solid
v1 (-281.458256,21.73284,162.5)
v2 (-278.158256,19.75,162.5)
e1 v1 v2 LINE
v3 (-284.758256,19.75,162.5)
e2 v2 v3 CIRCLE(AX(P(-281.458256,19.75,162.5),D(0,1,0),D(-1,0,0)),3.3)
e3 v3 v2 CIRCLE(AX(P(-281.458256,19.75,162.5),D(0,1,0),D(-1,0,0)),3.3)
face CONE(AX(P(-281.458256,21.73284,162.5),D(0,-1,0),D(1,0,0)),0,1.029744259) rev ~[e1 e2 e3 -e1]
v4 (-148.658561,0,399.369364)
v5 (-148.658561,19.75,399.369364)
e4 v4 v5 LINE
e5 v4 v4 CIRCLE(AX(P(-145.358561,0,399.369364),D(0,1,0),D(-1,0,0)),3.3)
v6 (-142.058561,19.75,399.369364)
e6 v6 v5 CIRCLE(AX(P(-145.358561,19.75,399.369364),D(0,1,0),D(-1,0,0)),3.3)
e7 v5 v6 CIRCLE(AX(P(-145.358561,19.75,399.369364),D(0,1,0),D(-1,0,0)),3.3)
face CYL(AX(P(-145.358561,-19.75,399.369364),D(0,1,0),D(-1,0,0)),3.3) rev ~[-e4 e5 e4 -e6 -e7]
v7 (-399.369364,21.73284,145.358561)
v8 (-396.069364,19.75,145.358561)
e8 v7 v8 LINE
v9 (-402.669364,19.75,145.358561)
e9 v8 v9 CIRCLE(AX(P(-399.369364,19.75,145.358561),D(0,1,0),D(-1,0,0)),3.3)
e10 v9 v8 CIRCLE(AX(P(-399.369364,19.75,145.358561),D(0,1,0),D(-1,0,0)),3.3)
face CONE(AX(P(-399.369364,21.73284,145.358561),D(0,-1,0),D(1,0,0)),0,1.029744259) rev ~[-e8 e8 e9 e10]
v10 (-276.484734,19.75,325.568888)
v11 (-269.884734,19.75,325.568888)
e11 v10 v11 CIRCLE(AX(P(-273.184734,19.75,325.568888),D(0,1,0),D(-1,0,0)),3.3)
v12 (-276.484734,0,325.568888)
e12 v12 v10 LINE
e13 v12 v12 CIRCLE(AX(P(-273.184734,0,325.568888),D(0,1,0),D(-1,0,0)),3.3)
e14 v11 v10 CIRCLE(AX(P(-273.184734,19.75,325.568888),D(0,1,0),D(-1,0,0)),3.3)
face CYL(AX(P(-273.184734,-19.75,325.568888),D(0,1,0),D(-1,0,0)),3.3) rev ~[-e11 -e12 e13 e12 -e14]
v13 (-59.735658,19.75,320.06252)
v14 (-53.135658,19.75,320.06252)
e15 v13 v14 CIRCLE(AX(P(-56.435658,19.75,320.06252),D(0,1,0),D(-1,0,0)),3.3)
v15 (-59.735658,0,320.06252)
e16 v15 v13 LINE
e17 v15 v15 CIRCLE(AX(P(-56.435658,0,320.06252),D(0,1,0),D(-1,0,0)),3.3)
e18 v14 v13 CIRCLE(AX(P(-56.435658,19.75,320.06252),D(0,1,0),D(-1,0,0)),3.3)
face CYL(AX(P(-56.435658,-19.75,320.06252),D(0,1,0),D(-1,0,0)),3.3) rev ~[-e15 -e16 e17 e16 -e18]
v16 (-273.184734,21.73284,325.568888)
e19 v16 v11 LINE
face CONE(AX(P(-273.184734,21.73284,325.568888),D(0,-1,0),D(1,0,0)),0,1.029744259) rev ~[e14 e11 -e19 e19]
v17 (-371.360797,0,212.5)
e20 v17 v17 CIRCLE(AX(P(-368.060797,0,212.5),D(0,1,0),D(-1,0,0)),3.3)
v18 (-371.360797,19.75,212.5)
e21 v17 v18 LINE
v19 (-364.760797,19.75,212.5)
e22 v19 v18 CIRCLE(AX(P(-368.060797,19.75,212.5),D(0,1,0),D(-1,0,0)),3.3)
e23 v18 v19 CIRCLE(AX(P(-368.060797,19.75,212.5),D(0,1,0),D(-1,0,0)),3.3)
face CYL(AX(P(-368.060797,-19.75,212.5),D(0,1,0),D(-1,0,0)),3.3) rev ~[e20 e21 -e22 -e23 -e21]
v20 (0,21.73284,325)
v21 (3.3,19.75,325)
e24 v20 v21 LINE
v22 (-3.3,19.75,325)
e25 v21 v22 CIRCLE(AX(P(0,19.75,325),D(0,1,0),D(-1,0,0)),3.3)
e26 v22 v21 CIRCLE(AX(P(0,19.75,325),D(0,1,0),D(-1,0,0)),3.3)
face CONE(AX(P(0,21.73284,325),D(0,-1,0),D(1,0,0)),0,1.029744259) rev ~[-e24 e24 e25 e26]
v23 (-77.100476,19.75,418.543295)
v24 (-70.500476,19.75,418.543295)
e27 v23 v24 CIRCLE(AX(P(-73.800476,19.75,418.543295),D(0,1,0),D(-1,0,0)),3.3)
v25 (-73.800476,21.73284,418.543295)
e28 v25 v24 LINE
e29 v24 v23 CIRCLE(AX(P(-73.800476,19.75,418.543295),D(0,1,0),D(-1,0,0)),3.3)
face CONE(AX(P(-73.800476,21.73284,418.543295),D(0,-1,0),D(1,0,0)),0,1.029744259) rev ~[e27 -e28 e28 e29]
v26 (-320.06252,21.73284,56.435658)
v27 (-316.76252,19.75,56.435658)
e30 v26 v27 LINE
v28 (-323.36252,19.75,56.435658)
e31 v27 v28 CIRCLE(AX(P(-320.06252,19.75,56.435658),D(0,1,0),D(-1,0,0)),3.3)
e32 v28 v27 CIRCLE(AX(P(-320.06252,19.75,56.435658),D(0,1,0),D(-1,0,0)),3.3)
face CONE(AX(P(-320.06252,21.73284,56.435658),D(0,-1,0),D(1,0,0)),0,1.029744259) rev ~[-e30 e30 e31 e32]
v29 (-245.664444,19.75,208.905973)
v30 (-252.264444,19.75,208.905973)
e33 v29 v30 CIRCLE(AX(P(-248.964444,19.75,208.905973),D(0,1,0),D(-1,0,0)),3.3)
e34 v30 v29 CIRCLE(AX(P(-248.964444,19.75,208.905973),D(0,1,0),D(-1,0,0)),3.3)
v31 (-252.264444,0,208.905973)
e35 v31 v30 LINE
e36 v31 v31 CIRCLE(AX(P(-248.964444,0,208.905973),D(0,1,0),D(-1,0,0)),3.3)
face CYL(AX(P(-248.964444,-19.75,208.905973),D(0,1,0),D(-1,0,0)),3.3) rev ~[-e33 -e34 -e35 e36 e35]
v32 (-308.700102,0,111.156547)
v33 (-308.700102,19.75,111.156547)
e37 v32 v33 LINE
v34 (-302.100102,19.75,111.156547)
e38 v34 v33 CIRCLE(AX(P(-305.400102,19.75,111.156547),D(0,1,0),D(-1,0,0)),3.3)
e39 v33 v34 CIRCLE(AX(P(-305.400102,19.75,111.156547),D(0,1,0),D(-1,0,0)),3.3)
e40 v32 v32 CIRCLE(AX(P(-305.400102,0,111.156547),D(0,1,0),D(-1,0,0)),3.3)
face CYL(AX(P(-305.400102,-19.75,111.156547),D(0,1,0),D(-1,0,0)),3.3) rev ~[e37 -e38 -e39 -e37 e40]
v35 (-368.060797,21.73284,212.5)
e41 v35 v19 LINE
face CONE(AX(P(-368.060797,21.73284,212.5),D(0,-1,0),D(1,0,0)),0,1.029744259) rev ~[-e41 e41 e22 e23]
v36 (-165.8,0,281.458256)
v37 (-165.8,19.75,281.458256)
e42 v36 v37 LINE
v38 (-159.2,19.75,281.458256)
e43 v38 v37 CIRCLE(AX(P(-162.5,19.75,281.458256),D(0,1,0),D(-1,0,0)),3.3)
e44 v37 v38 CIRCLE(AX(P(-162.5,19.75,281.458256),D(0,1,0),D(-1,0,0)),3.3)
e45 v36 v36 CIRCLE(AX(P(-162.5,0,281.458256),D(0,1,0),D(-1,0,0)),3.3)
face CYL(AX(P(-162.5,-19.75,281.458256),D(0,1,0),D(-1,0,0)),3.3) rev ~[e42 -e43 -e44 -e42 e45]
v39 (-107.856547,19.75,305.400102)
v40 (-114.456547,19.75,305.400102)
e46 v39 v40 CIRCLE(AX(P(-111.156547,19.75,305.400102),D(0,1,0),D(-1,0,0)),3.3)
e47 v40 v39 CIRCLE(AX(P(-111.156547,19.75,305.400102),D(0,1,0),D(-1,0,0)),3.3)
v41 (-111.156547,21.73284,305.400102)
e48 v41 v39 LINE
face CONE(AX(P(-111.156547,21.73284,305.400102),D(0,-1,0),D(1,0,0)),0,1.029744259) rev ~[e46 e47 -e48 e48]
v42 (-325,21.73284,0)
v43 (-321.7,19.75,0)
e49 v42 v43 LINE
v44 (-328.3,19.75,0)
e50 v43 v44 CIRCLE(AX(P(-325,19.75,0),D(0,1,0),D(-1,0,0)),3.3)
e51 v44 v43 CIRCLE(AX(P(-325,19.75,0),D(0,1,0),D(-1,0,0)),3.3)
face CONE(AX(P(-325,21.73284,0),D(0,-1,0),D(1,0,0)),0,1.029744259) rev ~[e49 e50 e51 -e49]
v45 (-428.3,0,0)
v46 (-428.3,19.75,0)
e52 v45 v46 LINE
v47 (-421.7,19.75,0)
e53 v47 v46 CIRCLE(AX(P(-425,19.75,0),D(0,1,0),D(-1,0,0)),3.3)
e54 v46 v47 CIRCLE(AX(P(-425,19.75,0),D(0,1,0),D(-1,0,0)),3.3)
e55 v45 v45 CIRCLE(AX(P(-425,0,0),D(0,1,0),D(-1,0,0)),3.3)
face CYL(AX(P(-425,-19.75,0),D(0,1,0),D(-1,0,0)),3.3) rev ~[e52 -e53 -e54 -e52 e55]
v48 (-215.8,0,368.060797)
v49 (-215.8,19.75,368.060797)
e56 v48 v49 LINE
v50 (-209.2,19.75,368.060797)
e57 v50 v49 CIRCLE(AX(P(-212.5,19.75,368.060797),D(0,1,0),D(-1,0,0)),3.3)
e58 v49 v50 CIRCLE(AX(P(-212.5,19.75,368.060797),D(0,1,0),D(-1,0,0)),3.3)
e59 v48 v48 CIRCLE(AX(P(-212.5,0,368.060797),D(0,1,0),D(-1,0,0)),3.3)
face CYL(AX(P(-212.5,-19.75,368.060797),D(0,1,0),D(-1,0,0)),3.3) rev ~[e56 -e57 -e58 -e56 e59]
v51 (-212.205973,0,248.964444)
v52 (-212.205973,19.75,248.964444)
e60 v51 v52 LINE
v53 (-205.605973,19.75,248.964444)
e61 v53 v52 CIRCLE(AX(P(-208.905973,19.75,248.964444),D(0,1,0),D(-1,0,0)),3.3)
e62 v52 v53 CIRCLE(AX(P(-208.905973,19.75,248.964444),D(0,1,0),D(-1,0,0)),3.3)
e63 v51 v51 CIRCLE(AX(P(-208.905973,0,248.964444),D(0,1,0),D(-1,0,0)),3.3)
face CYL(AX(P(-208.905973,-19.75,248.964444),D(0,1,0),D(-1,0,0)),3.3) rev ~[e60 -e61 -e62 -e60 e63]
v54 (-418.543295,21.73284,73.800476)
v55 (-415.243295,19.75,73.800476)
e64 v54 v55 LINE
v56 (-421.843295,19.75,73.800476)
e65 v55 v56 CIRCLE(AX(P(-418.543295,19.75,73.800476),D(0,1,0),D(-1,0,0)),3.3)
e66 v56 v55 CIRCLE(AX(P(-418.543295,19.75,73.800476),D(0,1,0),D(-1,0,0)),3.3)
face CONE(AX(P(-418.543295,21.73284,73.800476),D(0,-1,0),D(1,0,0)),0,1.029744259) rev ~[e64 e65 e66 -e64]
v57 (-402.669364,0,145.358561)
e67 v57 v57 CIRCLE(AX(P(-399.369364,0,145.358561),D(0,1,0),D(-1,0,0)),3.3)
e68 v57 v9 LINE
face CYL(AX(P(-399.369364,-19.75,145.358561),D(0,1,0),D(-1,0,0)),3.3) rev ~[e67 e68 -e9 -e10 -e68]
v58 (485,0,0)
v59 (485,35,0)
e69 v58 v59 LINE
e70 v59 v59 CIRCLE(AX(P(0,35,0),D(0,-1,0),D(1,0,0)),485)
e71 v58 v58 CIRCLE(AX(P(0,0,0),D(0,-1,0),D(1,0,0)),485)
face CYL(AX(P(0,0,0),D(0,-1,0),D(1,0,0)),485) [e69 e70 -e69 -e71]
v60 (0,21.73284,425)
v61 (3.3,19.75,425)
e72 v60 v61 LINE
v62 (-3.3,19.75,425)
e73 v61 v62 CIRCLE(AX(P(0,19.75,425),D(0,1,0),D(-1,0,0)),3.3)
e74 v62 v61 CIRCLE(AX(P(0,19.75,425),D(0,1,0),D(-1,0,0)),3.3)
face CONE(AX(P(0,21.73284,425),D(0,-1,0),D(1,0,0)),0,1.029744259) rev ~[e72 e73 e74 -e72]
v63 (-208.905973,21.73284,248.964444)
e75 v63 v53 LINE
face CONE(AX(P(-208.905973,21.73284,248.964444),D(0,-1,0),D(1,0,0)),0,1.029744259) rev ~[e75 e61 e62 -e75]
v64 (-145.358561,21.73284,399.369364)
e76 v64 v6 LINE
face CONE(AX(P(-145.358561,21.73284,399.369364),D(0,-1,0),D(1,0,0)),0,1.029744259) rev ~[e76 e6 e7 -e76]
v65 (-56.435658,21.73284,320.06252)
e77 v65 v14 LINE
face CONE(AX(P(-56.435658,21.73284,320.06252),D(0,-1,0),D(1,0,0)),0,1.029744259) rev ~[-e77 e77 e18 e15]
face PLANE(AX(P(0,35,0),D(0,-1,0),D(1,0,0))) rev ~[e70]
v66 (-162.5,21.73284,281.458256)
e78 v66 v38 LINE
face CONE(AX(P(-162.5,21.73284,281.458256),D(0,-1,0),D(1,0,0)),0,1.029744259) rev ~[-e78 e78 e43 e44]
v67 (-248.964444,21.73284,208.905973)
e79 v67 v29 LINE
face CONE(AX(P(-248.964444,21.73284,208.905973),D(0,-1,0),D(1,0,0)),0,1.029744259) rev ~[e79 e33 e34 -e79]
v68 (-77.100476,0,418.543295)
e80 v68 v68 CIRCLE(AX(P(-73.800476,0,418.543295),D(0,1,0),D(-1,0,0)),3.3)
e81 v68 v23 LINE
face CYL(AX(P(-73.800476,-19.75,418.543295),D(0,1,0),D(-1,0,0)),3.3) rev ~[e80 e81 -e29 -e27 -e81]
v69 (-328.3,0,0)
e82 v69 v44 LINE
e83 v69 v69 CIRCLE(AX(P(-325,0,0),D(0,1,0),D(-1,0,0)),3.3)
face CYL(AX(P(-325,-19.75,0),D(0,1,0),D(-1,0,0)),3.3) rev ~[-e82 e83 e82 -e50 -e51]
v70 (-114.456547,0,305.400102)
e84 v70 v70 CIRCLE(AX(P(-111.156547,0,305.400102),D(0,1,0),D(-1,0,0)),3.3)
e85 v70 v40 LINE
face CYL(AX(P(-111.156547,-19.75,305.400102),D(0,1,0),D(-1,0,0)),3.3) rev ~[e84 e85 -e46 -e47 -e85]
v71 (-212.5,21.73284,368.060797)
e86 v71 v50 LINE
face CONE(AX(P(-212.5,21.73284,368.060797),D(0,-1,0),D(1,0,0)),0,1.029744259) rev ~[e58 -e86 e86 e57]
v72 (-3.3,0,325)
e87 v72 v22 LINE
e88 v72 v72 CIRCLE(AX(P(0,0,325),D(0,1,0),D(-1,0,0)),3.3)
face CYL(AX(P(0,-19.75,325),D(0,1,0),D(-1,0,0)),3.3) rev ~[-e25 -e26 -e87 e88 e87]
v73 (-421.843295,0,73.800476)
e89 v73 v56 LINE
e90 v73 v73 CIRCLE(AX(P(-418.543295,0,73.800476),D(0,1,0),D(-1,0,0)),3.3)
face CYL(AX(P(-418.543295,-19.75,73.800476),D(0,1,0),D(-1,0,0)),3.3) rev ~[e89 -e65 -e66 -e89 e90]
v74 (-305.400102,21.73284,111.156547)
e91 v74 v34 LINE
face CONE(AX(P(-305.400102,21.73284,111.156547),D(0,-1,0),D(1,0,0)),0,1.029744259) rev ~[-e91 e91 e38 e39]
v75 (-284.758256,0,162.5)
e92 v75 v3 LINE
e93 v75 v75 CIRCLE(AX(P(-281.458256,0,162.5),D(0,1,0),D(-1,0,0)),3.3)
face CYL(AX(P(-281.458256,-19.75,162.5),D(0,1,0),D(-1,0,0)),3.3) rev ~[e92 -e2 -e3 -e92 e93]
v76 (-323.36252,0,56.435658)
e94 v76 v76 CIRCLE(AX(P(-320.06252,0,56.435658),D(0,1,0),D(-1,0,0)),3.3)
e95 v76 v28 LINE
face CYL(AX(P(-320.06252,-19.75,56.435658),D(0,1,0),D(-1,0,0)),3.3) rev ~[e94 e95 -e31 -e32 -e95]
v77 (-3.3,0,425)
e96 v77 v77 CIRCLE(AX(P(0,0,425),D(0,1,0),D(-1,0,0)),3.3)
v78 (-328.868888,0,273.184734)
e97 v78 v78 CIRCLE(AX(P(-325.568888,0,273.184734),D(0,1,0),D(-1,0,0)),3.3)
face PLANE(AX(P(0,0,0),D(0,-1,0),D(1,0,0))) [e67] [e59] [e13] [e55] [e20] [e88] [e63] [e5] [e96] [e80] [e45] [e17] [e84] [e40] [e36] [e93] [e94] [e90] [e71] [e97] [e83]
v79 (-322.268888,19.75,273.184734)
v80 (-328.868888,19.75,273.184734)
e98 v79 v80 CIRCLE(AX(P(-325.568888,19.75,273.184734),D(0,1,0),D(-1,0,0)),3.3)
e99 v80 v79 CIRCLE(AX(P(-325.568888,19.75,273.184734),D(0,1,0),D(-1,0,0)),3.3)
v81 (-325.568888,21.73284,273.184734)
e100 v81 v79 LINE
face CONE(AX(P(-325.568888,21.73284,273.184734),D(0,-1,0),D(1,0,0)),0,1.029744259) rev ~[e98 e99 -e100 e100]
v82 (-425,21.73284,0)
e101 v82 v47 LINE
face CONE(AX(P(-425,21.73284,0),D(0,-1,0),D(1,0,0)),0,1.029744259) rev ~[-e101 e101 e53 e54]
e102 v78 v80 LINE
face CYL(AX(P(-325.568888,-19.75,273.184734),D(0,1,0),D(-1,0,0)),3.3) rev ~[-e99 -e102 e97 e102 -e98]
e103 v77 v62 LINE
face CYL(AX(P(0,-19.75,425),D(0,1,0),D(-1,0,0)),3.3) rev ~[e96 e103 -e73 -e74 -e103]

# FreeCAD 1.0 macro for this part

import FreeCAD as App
import Part
import Sketcher

V = App.Vector

doc = App.newDocument("Part")
params = doc.addObject("Spreadsheet::Sheet", "Params")
for row, (alias, value) in enumerate([
    ("sketch1_diameter", "970 mm"),
    ("pad1_length", "35 mm"),
    ("sketch2_diameter", "6.6 mm"),
    ("hole_diameter", "6.6 mm"),
    ("hole_depth", "19.75 mm"),
], start=1):
    params.set(f"A{row}", alias)
    params.set(f"B{row}", "=" + value)
    params.setAlias(f"B{row}", alias)

body = doc.addObject("PartDesign::Body", "Body")

sketch1 = body.newObject("Sketcher::SketchObject", "Sketch")
sketch1.AttachmentSupport = (doc.getObject("XZ_Plane"), [""])
sketch1.MapMode = "FlatFace"
sketch1.addGeometry(Part.Circle(V(0, 0, 0), V(0, 0, 1), 485), False)
sketch1.addConstraint(Sketcher.Constraint("Coincident", 0, 3, -1, 1))
sketch1.addConstraint(Sketcher.Constraint("Diameter", 0, 970.0))
sketch1.setExpression("Constraints[1]", "Params.sketch1_diameter")
pad1 = body.newObject("PartDesign::Pad", "Pad")
pad1.Profile = sketch1
pad1.setExpression("Length", "Params.pad1_length")
pad1.Reversed = True

sketch2 = body.newObject("Sketcher::SketchObject", "Sketch001")
sketch2.AttachmentSupport = (doc.getObject("XZ_Plane"), [""])
sketch2.MapMode = "FlatFace"
sketch2.addGeometry(Part.Circle(V(-325, 0, 0), V(0, 0, 1), 3.3), False)
sketch2.addGeometry(Part.Circle(V(-320.1, 56.4, 0), V(0, 0, 1), 3.3), False)
sketch2.addGeometry(Part.Circle(V(-305.4, 111.2, 0), V(0, 0, 1), 3.3), False)
sketch2.addGeometry(Part.Circle(V(-281.5, 162.5, 0), V(0, 0, 1), 3.3), False)
sketch2.addGeometry(Part.Circle(V(-249, 208.9, 0), V(0, 0, 1), 3.3), False)
sketch2.addGeometry(Part.Circle(V(-208.9, 249, 0), V(0, 0, 1), 3.3), False)
sketch2.addGeometry(Part.Circle(V(-162.5, 281.5, 0), V(0, 0, 1), 3.3), False)
sketch2.addGeometry(Part.Circle(V(-111.2, 305.4, 0), V(0, 0, 1), 3.3), False)
sketch2.addGeometry(Part.Circle(V(-56.4, 320.1, 0), V(0, 0, 1), 3.3), False)
sketch2.addGeometry(Part.Circle(V(0, 325, 0), V(0, 0, 1), 3.3), False)
sketch2.addGeometry(Part.Circle(V(0, 425, 0), V(0, 0, 1), 3.3), False)
sketch2.addGeometry(Part.Circle(V(-73.8, 418.5, 0), V(0, 0, 1), 3.3), False)
sketch2.addGeometry(Part.Circle(V(-145.4, 399.4, 0), V(0, 0, 1), 3.3), False)
sketch2.addGeometry(Part.Circle(V(-212.5, 368.1, 0), V(0, 0, 1), 3.3), False)
sketch2.addGeometry(Part.Circle(V(-273.2, 325.6, 0), V(0, 0, 1), 3.3), False)
sketch2.addGeometry(Part.Circle(V(-325.6, 273.2, 0), V(0, 0, 1), 3.3), False)
sketch2.addGeometry(Part.Circle(V(-368.1, 212.5, 0), V(0, 0, 1), 3.3), False)
sketch2.addGeometry(Part.Circle(V(-399.4, 145.4, 0), V(0, 0, 1), 3.3), False)
sketch2.addGeometry(Part.Circle(V(-418.5, 73.8, 0), V(0, 0, 1), 3.3), False)
sketch2.addGeometry(Part.Circle(V(-425, 0, 0), V(0, 0, 1), 3.3), False)
sketch2.addConstraint(Sketcher.Constraint("Equal", 0, 1))
sketch2.addConstraint(Sketcher.Constraint("Equal", 1, 2))
sketch2.addConstraint(Sketcher.Constraint("Equal", 2, 3))
sketch2.addConstraint(Sketcher.Constraint("Equal", 3, 4))
sketch2.addConstraint(Sketcher.Constraint("Equal", 4, 5))
sketch2.addConstraint(Sketcher.Constraint("Equal", 5, 6))
sketch2.addConstraint(Sketcher.Constraint("Equal", 6, 7))
sketch2.addConstraint(Sketcher.Constraint("Equal", 7, 8))
sketch2.addConstraint(Sketcher.Constraint("Equal", 8, 9))
sketch2.addConstraint(Sketcher.Constraint("Equal", 9, 10))
sketch2.addConstraint(Sketcher.Constraint("Equal", 10, 11))
sketch2.addConstraint(Sketcher.Constraint("Equal", 11, 12))
sketch2.addConstraint(Sketcher.Constraint("Equal", 12, 13))
sketch2.addConstraint(Sketcher.Constraint("Equal", 13, 14))
sketch2.addConstraint(Sketcher.Constraint("Equal", 14, 15))
sketch2.addConstraint(Sketcher.Constraint("Equal", 15, 16))
sketch2.addConstraint(Sketcher.Constraint("Equal", 16, 17))
sketch2.addConstraint(Sketcher.Constraint("Equal", 17, 18))
sketch2.addConstraint(Sketcher.Constraint("Equal", 18, 19))
sketch2.addConstraint(Sketcher.Constraint("PointOnObject", 0, 3, -1))
sketch2.addConstraint(Sketcher.Constraint("PointOnObject", 9, 3, -2))
sketch2.addConstraint(Sketcher.Constraint("PointOnObject", 10, 3, -2))
sketch2.addConstraint(Sketcher.Constraint("PointOnObject", 19, 3, -1))
sketch2.addConstraint(Sketcher.Constraint("Diameter", 0, 6.6))
sketch2.addConstraint(Sketcher.Constraint("DistanceX", 0, 3, -1, 1, 325.0))
sketch2.addConstraint(Sketcher.Constraint("DistanceY", -1, 1, 9, 3, 325.0))
sketch2.addConstraint(Sketcher.Constraint("DistanceY", -1, 1, 10, 3, 425.0))
sketch2.addConstraint(Sketcher.Constraint("DistanceX", 19, 3, -1, 1, 425.0))
sketch2.addConstraint(Sketcher.Constraint("DistanceX", 13, 3, 6, 3, 50.0))
sketch2.addConstraint(Sketcher.Constraint("DistanceY", 3, 3, 16, 3, 50.0))
sketch2.addConstraint(Sketcher.Constraint("DistanceY", -1, 1, 3, 3, 162.5))
sketch2.addConstraint(Sketcher.Constraint("DistanceX", 6, 3, -1, 1, 162.5))
sketch2.addConstraint(Sketcher.Constraint("DistanceX", 2, 3, -1, 1, 305.400102))
sketch2.addConstraint(Sketcher.Constraint("DistanceY", -1, 1, 7, 3, 305.400102))
sketch2.addConstraint(Sketcher.Constraint("DistanceY", 1, 3, 6, 3, 225.022598))
sketch2.addConstraint(Sketcher.Constraint("DistanceX", 3, 3, 8, 3, 225.022598))
sketch2.addConstraint(Sketcher.Constraint("DistanceY", 13, 3, 11, 3, 50.482498))
sketch2.addConstraint(Sketcher.Constraint("DistanceX", 18, 3, 16, 3, 50.482498))
sketch2.addConstraint(Sketcher.Constraint("DistanceX", 1, 3, -1, 1, 320.06252))
sketch2.addConstraint(Sketcher.Constraint("DistanceY", -1, 1, 8, 3, 320.06252))
sketch2.addConstraint(Sketcher.Constraint("DistanceX", 12, 3, -1, 1, 145.358561))
sketch2.addConstraint(Sketcher.Constraint("DistanceY", -1, 1, 14, 3, 325.568888))
sketch2.addConstraint(Sketcher.Constraint("DistanceX", 15, 3, -1, 1, 325.568888))
sketch2.addConstraint(Sketcher.Constraint("DistanceY", -1, 1, 17, 3, 145.358561))
sketch2.addConstraint(Sketcher.Constraint("DistanceY", 1, 3, 2, 3, 54.720889))
sketch2.addConstraint(Sketcher.Constraint("DistanceX", 4, 3, 5, 3, 40.058471))
sketch2.addConstraint(Sketcher.Constraint("DistanceY", 4, 3, 5, 3, 40.058471))
sketch2.addConstraint(Sketcher.Constraint("DistanceX", 2, 3, 5, 3, 96.494129))
sketch2.addConstraint(Sketcher.Constraint("DistanceY", 4, 3, 7, 3, 96.494129))
sketch2.addConstraint(Sketcher.Constraint("DistanceX", 3, 3, 7, 3, 170.30171))
sketch2.addConstraint(Sketcher.Constraint("DistanceX", 7, 3, 11, 3, 37.356071))
sketch2.addConstraint(Sketcher.Constraint("DistanceY", 6, 3, 11, 3, 137.085039))
sketch2.addConstraint(Sketcher.Constraint("DistanceY", 12, 3, 11, 3, 19.173931))
sketch2.addConstraint(Sketcher.Constraint("DistanceY", 14, 3, 13, 3, 42.491908))
sketch2.addConstraint(Sketcher.Constraint("DistanceX", 14, 3, 5, 3, 64.278761))
sketch2.addConstraint(Sketcher.Constraint("DistanceY", 4, 3, 15, 3, 64.278761))
sketch2.addConstraint(Sketcher.Constraint("DistanceX", 16, 3, 15, 3, 42.491908))
sketch2.addConstraint(Sketcher.Constraint("DistanceX", 16, 3, 3, 3, 86.60254))
sketch2.addConstraint(Sketcher.Constraint("DistanceX", 18, 3, 17, 3, 19.173931))
sketch2.addConstraint(Sketcher.Constraint("DistanceY", 18, 3, 2, 3, 37.356071))
sketch2.setExpression("Constraints[23]", "Params.sketch2_diameter")
doc.recompute()
hole = body.newObject("PartDesign::Hole", "Hole")
hole.Profile = sketch2
hole.ThreadType = "None"
hole.setExpression("Diameter", "Params.hole_diameter")
hole.DepthType = "Dimension"
hole.setExpression("Depth", "Params.hole_depth")
hole.DrillPoint = "Angled"
hole.DrillPointAngle = 118

doc.recompute()
